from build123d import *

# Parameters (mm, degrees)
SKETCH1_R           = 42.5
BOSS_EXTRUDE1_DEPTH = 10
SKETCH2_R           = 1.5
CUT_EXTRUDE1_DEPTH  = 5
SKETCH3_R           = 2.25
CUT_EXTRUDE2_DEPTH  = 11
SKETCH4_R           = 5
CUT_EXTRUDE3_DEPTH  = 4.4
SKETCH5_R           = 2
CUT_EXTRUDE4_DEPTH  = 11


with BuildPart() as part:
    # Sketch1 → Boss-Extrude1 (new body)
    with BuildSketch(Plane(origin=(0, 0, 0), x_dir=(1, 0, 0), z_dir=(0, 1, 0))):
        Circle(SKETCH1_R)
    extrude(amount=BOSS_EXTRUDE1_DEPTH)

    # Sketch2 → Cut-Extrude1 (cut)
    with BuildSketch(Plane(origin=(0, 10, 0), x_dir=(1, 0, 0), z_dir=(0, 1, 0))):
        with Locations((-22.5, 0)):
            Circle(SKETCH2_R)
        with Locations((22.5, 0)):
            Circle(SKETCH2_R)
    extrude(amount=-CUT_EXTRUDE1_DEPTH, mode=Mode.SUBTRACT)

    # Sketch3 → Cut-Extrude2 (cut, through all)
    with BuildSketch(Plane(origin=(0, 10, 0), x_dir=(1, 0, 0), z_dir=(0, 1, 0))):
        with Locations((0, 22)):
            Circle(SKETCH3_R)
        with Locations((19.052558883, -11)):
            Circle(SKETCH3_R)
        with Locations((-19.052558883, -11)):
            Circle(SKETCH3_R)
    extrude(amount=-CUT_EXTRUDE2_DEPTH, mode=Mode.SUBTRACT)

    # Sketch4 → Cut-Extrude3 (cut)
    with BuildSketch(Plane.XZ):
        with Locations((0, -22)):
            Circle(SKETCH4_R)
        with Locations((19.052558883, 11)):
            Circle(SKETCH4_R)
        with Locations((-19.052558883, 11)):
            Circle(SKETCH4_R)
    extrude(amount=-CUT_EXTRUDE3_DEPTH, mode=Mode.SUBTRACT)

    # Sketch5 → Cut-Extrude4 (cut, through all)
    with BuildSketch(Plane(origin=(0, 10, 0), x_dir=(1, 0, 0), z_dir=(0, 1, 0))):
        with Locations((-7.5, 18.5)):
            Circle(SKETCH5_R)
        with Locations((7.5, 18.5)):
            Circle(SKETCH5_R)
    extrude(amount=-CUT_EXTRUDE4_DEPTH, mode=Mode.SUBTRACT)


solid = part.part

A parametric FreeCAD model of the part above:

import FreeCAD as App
import Part
import Sketcher

V = App.Vector
Q = App.Units.Quantity

doc = App.newDocument("Part")
body = doc.addObject("PartDesign::Body", "Body")

sketch1 = body.newObject("Sketcher::SketchObject", "Sketch")
sketch1.AttachmentSupport = (doc.getObject("XZ_Plane"), [""])
sketch1.MapMode = "FlatFace"
sketch1.addGeometry(Part.Circle(V(0, 0, 0), V(0, 0, 1), 42.5), False)
sketch1.addConstraint([
    Sketcher.Constraint("Coincident", 0, 3, -1, 1),
    Sketcher.Constraint("Diameter", 0, Q("85 mm")),
])
pad1 = body.newObject("PartDesign::Pad", "Pad")
pad1.Profile = sketch1
pad1.Length = 10
pad1.Reversed = True

sketch2 = body.newObject("Sketcher::SketchObject", "Sketch001")
sketch2.AttachmentSupport = (doc.getObject("XZ_Plane"), [""])
sketch2.MapMode = "FlatFace"
sketch2.AttachmentOffset = App.Placement(V(0, 0, -10), App.Rotation())
sketch2.addGeometry([
    Part.Circle(V(-22.5, 0, 0), V(0, 0, 1), 1.5),
    Part.Circle(V(22.5, 0, 0), V(0, 0, 1), 1.5),
], False)
sketch2.addConstraint([
    Sketcher.Constraint("Equal", 0, 1),
    Sketcher.Constraint("Symmetric", 0, 3, 1, 3, -1, 1),
    Sketcher.Constraint("PointOnObject", 0, 3, -1),
    Sketcher.Constraint("Diameter", 0, Q("3 mm")),
    Sketcher.Constraint("DistanceX", 0, 3, 1, 3, Q("45 mm")),
])
pocket1 = body.newObject("PartDesign::Pocket", "Pocket")
pocket1.Profile = sketch2
pocket1.Length = 5
pocket1.Reversed = True

sketch3 = body.newObject("Sketcher::SketchObject", "Sketch002")
sketch3.AttachmentSupport = (doc.getObject("XZ_Plane"), [""])
sketch3.MapMode = "FlatFace"
sketch3.AttachmentOffset = App.Placement(V(0, 0, -10), App.Rotation())
sketch3.addGeometry([
    Part.Circle(V(0, -22, 0), V(0, 0, 1), 2.25),
    Part.Circle(V(19.052559, 11, 0), V(0, 0, 1), 2.25),
    Part.Circle(V(-19.052559, 11, 0), V(0, 0, 1), 2.25),
], False)
sketch3.addConstraint([
    Sketcher.Constraint("Equal", 0, 1),
    Sketcher.Constraint("Equal", 1, 2),
    Sketcher.Constraint("Symmetric", 1, 3, 2, 3, -2),
    Sketcher.Constraint("PointOnObject", 0, 3, -2),
    Sketcher.Constraint("Diameter", 0, Q("4.5 mm")),
    Sketcher.Constraint("DistanceY", 0, 3, -1, 1, Q("22 mm")),
    Sketcher.Constraint("DistanceY", -1, 1, 1, 3, Q("11 mm")),
    Sketcher.Constraint("DistanceX", -1, 1, 1, 3, Q("19.052559 mm")),
])
pocket2 = body.newObject("PartDesign::Pocket", "Pocket001")
pocket2.Profile = sketch3
pocket2.Type = "ThroughAll"
pocket2.Reversed = True

sketch4 = body.newObject("Sketcher::SketchObject", "Sketch003")
sketch4.AttachmentSupport = (doc.getObject("XZ_Plane"), [""])
sketch4.MapMode = "FlatFace"
sketch4.addGeometry([
    Part.Circle(V(0, -22, 0), V(0, 0, 1), 5),
    Part.Circle(V(19.052559, 11, 0), V(0, 0, 1), 5),
    Part.Circle(V(-19.052559, 11, 0), V(0, 0, 1), 5),
], False)
sketch4.addConstraint([
    Sketcher.Constraint("Equal", 0, 1),
    Sketcher.Constraint("Equal", 1, 2),
    Sketcher.Constraint("Symmetric", 1, 3, 2, 3, -2),
    Sketcher.Constraint("PointOnObject", 0, 3, -2),
    Sketcher.Constraint("Diameter", 0, Q("10 mm")),
    Sketcher.Constraint("DistanceY", 0, 3, -1, 1, Q("22 mm")),
    Sketcher.Constraint("DistanceY", -1, 1, 1, 3, Q("11 mm")),
    Sketcher.Constraint("DistanceX", -1, 1, 1, 3, Q("19.052559 mm")),
])
pocket3 = body.newObject("PartDesign::Pocket", "Pocket002")
pocket3.Profile = sketch4
pocket3.Length = 4.4

sketch5 = body.newObject("Sketcher::SketchObject", "Sketch004")
sketch5.AttachmentSupport = (doc.getObject("XZ_Plane"), [""])
sketch5.MapMode = "FlatFace"
sketch5.AttachmentOffset = App.Placement(V(0, 0, -10), App.Rotation())
sketch5.addGeometry([
    Part.Circle(V(-7.5, -18.5, 0), V(0, 0, 1), 2),
    Part.Circle(V(7.5, -18.5, 0), V(0, 0, 1), 2),
], False)
sketch5.addConstraint([
    Sketcher.Constraint("Equal", 0, 1),
    Sketcher.Constraint("Symmetric", 0, 3, 1, 3, -2),
    Sketcher.Constraint("Diameter", 0, Q("4 mm")),
    Sketcher.Constraint("DistanceX", 0, 3, 1, 3, Q("15 mm")),
    Sketcher.Constraint("DistanceY", 0, 3, -1, 1, Q("18.5 mm")),
])
pocket4 = body.newObject("PartDesign::Pocket", "Pocket003")
pocket4.Profile = sketch5
pocket4.Type = "ThroughAll"
pocket4.Reversed = True

doc.recompute()
